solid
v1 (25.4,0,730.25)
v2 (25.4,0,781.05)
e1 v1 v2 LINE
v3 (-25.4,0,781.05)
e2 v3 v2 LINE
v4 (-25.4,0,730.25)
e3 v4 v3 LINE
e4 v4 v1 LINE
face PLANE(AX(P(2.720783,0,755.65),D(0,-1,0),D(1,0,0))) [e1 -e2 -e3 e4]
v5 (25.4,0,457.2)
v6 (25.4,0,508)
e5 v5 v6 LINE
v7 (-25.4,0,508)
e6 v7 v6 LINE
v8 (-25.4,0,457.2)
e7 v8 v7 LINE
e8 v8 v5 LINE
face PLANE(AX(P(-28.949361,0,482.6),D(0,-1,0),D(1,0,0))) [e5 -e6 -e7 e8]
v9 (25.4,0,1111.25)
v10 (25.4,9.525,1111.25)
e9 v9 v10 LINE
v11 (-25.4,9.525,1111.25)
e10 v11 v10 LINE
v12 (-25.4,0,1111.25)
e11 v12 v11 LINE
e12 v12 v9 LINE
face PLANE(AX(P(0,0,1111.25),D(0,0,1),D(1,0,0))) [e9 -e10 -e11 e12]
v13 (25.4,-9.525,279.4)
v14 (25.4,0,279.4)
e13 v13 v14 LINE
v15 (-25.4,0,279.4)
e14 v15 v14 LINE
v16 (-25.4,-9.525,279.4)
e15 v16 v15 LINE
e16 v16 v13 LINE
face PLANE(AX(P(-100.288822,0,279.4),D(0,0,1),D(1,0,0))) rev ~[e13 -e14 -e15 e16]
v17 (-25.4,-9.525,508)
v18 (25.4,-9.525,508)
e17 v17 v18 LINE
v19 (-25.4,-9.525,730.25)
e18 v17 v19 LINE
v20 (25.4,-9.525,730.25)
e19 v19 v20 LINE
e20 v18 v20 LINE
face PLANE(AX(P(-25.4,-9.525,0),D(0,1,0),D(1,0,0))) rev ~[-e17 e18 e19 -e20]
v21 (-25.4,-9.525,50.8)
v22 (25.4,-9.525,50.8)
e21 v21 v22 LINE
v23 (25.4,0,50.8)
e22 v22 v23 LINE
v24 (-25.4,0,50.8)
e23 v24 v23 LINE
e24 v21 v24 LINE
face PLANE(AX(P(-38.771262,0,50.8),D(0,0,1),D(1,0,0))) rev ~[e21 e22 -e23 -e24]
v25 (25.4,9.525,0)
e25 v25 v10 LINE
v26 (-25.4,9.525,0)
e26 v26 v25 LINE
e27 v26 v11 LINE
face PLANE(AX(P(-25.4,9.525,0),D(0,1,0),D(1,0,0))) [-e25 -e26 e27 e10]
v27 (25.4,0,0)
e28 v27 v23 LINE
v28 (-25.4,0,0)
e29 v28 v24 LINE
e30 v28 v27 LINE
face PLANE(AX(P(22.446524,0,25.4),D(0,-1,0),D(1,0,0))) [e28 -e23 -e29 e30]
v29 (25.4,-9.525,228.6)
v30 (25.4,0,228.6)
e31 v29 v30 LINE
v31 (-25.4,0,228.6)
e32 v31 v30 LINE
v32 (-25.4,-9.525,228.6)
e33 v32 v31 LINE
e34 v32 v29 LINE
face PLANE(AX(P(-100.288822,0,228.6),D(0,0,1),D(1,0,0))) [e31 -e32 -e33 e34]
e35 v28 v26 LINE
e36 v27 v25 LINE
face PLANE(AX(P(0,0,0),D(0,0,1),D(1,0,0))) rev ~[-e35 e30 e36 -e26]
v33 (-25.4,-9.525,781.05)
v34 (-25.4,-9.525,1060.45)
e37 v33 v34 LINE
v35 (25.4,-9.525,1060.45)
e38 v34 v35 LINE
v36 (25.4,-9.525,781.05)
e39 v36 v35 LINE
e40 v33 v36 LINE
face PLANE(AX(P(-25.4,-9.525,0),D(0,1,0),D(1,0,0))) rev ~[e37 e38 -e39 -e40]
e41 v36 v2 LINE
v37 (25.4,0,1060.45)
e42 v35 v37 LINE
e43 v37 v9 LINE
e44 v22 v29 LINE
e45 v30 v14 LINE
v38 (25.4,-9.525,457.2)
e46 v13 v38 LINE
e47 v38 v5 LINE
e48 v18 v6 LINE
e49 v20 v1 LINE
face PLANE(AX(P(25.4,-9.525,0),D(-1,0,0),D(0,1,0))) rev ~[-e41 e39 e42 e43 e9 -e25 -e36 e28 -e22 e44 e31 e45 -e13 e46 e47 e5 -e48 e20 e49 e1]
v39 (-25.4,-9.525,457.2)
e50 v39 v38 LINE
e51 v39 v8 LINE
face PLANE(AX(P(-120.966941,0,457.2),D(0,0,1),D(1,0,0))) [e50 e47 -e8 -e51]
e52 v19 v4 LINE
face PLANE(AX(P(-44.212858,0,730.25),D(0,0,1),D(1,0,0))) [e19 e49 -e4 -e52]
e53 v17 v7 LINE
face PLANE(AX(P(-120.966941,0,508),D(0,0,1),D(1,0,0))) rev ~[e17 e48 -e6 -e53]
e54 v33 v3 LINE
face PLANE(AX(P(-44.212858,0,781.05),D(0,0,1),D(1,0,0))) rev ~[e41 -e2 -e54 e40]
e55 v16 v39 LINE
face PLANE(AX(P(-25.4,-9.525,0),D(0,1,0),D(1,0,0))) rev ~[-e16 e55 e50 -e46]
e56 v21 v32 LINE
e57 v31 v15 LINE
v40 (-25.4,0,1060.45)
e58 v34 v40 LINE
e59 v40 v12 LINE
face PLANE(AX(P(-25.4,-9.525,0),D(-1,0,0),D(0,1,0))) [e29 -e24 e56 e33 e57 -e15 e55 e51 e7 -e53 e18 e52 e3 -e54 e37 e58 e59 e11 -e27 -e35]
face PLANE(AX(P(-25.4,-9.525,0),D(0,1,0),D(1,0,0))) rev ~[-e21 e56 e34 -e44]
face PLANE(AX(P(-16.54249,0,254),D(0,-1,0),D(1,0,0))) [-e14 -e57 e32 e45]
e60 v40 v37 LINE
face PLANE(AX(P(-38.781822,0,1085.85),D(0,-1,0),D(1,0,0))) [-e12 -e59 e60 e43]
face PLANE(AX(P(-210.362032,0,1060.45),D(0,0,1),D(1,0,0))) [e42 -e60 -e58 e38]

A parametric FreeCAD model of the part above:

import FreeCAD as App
import Part
import Sketcher
Q = App.Units.Quantity

doc = App.newDocument("Part")
body = doc.addObject("PartDesign::Body", "Body")

sketch1 = body.newObject("Sketcher::SketchObject", "Sketch")
sketch1.AttachmentSupport = (doc.getObject("XY_Plane"), [""])
sketch1.MapMode = "FlatFace"
sketch1.addGeometry([
    Part.LineSegment(App.Vector(-25, 10, 0), App.Vector(-25, -10, 0)),
    Part.LineSegment(App.Vector(-25, -10, 0), App.Vector(25, -10, 0)),
    Part.LineSegment(App.Vector(25, -10, 0), App.Vector(25, 10, 0)),
    Part.LineSegment(App.Vector(25, 10, 0), App.Vector(-25, 10, 0)),
], False)
sketch1.addConstraint([
    Sketcher.Constraint("Coincident", 0, 2, 1, 1),
    Sketcher.Constraint("Coincident", 1, 2, 2, 1),
    Sketcher.Constraint("Coincident", 2, 2, 3, 1),
    Sketcher.Constraint("Coincident", 3, 2, 0, 1),
    Sketcher.Constraint("Vertical", 0),
    Sketcher.Constraint("Horizontal", 1),
    Sketcher.Constraint("Vertical", 2),
    Sketcher.Constraint("Horizontal", 3),
    Sketcher.Constraint("Symmetric", 0, 2, 2, 2, -1, 1),
    Sketcher.Constraint("DistanceX", 1, 1, 1, 2, Q("2 in")),
    Sketcher.Constraint("DistanceY", 0, 2, 0, 1, Q("0.75 in")),
])
pad1 = body.newObject("PartDesign::Pad", "Pad")
pad1.Profile = sketch1
pad1.Length = Q("43.75 in")

sketch2 = body.newObject("Sketcher::SketchObject", "Sketch001")
sketch2.AttachmentSupport = (doc.getObject("XZ_Plane"), [""])
sketch2.MapMode = "FlatFace"
sketch2.addGeometry([
    Part.LineSegment(App.Vector(-39, 51, 0), App.Vector(-39, 0, 0)),
    Part.LineSegment(App.Vector(-39, 0, 0), App.Vector(84, 0, 0)),
    Part.LineSegment(App.Vector(84, 0, 0), App.Vector(84, 51, 0)),
    Part.LineSegment(App.Vector(84, 51, 0), App.Vector(-39, 51, 0)),
    Part.LineSegment(App.Vector(-44, 781, 0), App.Vector(-44, 730, 0)),
    Part.LineSegment(App.Vector(-44, 730, 0), App.Vector(50, 730, 0)),
    Part.LineSegment(App.Vector(50, 730, 0), App.Vector(50, 781, 0)),
    Part.LineSegment(App.Vector(50, 781, 0), App.Vector(-44, 781, 0)),
    Part.LineSegment(App.Vector(-210, 1111, 0), App.Vector(-210, 1060, 0)),
    Part.LineSegment(App.Vector(-210, 1060, 0), App.Vector(133, 1060, 0)),
    Part.LineSegment(App.Vector(133, 1060, 0), App.Vector(133, 1111, 0)),
    Part.LineSegment(App.Vector(133, 1111, 0), App.Vector(-210, 1111, 0)),
    Part.LineSegment(App.Vector(-100, 279, 0), App.Vector(-100, 229, 0)),
    Part.LineSegment(App.Vector(-100, 229, 0), App.Vector(67, 229, 0)),
    Part.LineSegment(App.Vector(67, 229, 0), App.Vector(67, 279, 0)),
    Part.LineSegment(App.Vector(67, 279, 0), App.Vector(-100, 279, 0)),
    Part.LineSegment(App.Vector(-121, 508, 0), App.Vector(-121, 457, 0)),
    Part.LineSegment(App.Vector(-121, 457, 0), App.Vector(63, 457, 0)),
    Part.LineSegment(App.Vector(63, 457, 0), App.Vector(63, 508, 0)),
    Part.LineSegment(App.Vector(63, 508, 0), App.Vector(-121, 508, 0)),
], False)
sketch2.addConstraint([
    Sketcher.Constraint("Coincident", 0, 2, 1, 1),
    Sketcher.Constraint("Coincident", 1, 2, 2, 1),
    Sketcher.Constraint("Coincident", 2, 2, 3, 1),
    Sketcher.Constraint("Coincident", 3, 2, 0, 1),
    Sketcher.Constraint("Coincident", 4, 2, 5, 1),
    Sketcher.Constraint("Coincident", 5, 2, 6, 1),
    Sketcher.Constraint("Coincident", 6, 2, 7, 1),
    Sketcher.Constraint("Coincident", 7, 2, 4, 1),
    Sketcher.Constraint("Coincident", 8, 2, 9, 1),
    Sketcher.Constraint("Coincident", 9, 2, 10, 1),
    Sketcher.Constraint("Coincident", 10, 2, 11, 1),
    Sketcher.Constraint("Coincident", 11, 2, 8, 1),
    Sketcher.Constraint("Coincident", 12, 2, 13, 1),
    Sketcher.Constraint("Coincident", 13, 2, 14, 1),
    Sketcher.Constraint("Coincident", 14, 2, 15, 1),
    Sketcher.Constraint("Coincident", 15, 2, 12, 1),
    Sketcher.Constraint("Coincident", 16, 2, 17, 1),
    Sketcher.Constraint("Coincident", 17, 2, 18, 1),
    Sketcher.Constraint("Coincident", 18, 2, 19, 1),
    Sketcher.Constraint("Coincident", 19, 2, 16, 1),
    Sketcher.Constraint("Vertical", 0),
    Sketcher.Constraint("Horizontal", 1),
    Sketcher.Constraint("Vertical", 2),
    Sketcher.Constraint("Horizontal", 3),
    Sketcher.Constraint("Vertical", 4),
    Sketcher.Constraint("Horizontal", 5),
    Sketcher.Constraint("Vertical", 6),
    Sketcher.Constraint("Horizontal", 7),
    Sketcher.Constraint("Vertical", 8),
    Sketcher.Constraint("Horizontal", 9),
    Sketcher.Constraint("Vertical", 10),
    Sketcher.Constraint("Horizontal", 11),
    Sketcher.Constraint("Vertical", 12),
    Sketcher.Constraint("Horizontal", 13),
    Sketcher.Constraint("Vertical", 14),
    Sketcher.Constraint("Horizontal", 15),
    Sketcher.Constraint("Vertical", 16),
    Sketcher.Constraint("Horizontal", 17),
    Sketcher.Constraint("Vertical", 18),
    Sketcher.Constraint("Horizontal", 19),
    Sketcher.Constraint("PointOnObject", 0, 2, -1),
    Sketcher.Constraint("Equal", 2, 4),
    Sketcher.Constraint("Equal", 6, 8),
    Sketcher.Constraint("Equal", 10, 12),
    Sketcher.Constraint("Equal", 14, 16),
    Sketcher.Constraint("DistanceY", 0, 2, 0, 1, Q("2 in")),
    Sketcher.Constraint("DistanceY", -1, 1, 12, 2, Q("9 in")),
    Sketcher.Constraint("DistanceY", -1, 1, 16, 2, Q("18 in")),
    Sketcher.Constraint("DistanceY", 7, 2, 8, 2, Q("11 in")),
    Sketcher.Constraint("DistanceY", -1, 1, 4, 2, Q("28.75 in")),
    Sketcher.Constraint("DistanceX", 5, 1, 5, 2, Q("93.867282 mm")),
    Sketcher.Constraint("DistanceX", 9, 1, 9, 2, Q("343.160421 mm")),
    Sketcher.Constraint("DistanceX", 17, 1, 17, 2, Q("184.03516 mm")),
    Sketcher.Constraint("DistanceX", 1, 1, 1, 2, Q("122.435573 mm")),
    Sketcher.Constraint("DistanceX", 13, 1, 13, 2, Q("167.492665 mm")),
    Sketcher.Constraint("DistanceX", -1, 1, 1, 2, Q("83.66431 mm")),
    Sketcher.Constraint("DistanceX", -1, 1, 9, 2, Q("132.798388 mm")),
    Sketcher.Constraint("DistanceX", 16, 2, -1, 1, Q("120.966941 mm")),
    Sketcher.Constraint("DistanceX", 4, 2, 2, 2, Q("127.877168 mm")),
    Sketcher.Constraint("DistanceX", 12, 2, 3, 2, Q("61.51756 mm")),
])
pocket1 = body.newObject("PartDesign::Pocket", "Pocket")
pocket1.Profile = sketch2
pocket1.Length = Q("1 in")
pocket1.Reversed = True

doc.recompute()
